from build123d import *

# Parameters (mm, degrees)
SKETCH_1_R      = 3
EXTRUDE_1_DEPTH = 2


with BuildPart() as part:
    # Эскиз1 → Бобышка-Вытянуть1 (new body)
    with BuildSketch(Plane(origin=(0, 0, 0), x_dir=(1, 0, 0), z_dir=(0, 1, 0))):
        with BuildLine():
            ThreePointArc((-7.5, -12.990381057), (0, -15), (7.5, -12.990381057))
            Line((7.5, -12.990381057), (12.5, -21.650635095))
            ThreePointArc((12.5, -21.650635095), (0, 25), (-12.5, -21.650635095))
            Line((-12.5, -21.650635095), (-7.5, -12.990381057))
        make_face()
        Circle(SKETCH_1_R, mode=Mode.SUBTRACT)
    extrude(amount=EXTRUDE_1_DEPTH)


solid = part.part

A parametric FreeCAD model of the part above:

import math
import FreeCAD as App
import Part
import Sketcher
Q = App.Units.Quantity

doc = App.newDocument("Part")
body = doc.addObject("PartDesign::Body", "Body")

# Sketch on XZ plane
sketch1 = doc.addObject("Sketcher::SketchObject", "Sketch")
body.addObject(sketch1)
sketch1.AttachmentSupport = (doc.XZ_Plane, [""])
sketch1.MapMode = "FlatFace"
sketch1.addGeometry([
    Part.ArcOfCircle(Part.Circle(App.Vector(0, 0, 0), App.Vector(0, 0, 1), 15), math.radians(60), math.radians(120)),  # 0
    Part.LineSegment(App.Vector(7.5, 13, 0), App.Vector(12.5, 21.7, 0)),  # 1
    Part.ArcOfCircle(Part.Circle(App.Vector(0, 0, 0), App.Vector(0, 0, 1), 25), math.radians(120), math.radians(420)),  # 2
    Part.LineSegment(App.Vector(-12.5, 21.7, 0), App.Vector(-7.5, 13, 0)),  # 3
    Part.Circle(App.Vector(0, 0, 0), App.Vector(0, 0, 1), 3),  # 4
], False)
sketch1.addConstraint([
    Sketcher.Constraint("Coincident", 0, 1, 1, 1),
    Sketcher.Constraint("Coincident", 1, 2, 2, 2),
    Sketcher.Constraint("Coincident", 2, 1, 3, 1),
    Sketcher.Constraint("Coincident", 3, 2, 0, 2),
    Sketcher.Constraint("Coincident", 0, 3, -1, 1),
    Sketcher.Constraint("Coincident", 2, 3, -1, 1),
    Sketcher.Constraint("Coincident", 4, 3, -1, 1),
    Sketcher.Constraint("Horizontal", 1, 2, 2, 1),
    Sketcher.Constraint("Horizontal", 0, 1, 3, 2),
    Sketcher.Constraint("Diameter", 4, Q("6 mm")),
    Sketcher.Constraint("Radius", 0, Q("15 mm")),
    Sketcher.Constraint("Radius", 2, Q("25 mm")),
    Sketcher.Constraint("Angle", 1, Q("60 deg")),
    Sketcher.Constraint("DistanceX", 2, 1, 0, 1, Q("20 mm")),
])
pad1 = doc.addObject("PartDesign::Pad", "Pad")
body.addObject(pad1)
pad1.Profile = sketch1
pad1.Length = 2
pad1.Reversed = True

doc.recompute()
